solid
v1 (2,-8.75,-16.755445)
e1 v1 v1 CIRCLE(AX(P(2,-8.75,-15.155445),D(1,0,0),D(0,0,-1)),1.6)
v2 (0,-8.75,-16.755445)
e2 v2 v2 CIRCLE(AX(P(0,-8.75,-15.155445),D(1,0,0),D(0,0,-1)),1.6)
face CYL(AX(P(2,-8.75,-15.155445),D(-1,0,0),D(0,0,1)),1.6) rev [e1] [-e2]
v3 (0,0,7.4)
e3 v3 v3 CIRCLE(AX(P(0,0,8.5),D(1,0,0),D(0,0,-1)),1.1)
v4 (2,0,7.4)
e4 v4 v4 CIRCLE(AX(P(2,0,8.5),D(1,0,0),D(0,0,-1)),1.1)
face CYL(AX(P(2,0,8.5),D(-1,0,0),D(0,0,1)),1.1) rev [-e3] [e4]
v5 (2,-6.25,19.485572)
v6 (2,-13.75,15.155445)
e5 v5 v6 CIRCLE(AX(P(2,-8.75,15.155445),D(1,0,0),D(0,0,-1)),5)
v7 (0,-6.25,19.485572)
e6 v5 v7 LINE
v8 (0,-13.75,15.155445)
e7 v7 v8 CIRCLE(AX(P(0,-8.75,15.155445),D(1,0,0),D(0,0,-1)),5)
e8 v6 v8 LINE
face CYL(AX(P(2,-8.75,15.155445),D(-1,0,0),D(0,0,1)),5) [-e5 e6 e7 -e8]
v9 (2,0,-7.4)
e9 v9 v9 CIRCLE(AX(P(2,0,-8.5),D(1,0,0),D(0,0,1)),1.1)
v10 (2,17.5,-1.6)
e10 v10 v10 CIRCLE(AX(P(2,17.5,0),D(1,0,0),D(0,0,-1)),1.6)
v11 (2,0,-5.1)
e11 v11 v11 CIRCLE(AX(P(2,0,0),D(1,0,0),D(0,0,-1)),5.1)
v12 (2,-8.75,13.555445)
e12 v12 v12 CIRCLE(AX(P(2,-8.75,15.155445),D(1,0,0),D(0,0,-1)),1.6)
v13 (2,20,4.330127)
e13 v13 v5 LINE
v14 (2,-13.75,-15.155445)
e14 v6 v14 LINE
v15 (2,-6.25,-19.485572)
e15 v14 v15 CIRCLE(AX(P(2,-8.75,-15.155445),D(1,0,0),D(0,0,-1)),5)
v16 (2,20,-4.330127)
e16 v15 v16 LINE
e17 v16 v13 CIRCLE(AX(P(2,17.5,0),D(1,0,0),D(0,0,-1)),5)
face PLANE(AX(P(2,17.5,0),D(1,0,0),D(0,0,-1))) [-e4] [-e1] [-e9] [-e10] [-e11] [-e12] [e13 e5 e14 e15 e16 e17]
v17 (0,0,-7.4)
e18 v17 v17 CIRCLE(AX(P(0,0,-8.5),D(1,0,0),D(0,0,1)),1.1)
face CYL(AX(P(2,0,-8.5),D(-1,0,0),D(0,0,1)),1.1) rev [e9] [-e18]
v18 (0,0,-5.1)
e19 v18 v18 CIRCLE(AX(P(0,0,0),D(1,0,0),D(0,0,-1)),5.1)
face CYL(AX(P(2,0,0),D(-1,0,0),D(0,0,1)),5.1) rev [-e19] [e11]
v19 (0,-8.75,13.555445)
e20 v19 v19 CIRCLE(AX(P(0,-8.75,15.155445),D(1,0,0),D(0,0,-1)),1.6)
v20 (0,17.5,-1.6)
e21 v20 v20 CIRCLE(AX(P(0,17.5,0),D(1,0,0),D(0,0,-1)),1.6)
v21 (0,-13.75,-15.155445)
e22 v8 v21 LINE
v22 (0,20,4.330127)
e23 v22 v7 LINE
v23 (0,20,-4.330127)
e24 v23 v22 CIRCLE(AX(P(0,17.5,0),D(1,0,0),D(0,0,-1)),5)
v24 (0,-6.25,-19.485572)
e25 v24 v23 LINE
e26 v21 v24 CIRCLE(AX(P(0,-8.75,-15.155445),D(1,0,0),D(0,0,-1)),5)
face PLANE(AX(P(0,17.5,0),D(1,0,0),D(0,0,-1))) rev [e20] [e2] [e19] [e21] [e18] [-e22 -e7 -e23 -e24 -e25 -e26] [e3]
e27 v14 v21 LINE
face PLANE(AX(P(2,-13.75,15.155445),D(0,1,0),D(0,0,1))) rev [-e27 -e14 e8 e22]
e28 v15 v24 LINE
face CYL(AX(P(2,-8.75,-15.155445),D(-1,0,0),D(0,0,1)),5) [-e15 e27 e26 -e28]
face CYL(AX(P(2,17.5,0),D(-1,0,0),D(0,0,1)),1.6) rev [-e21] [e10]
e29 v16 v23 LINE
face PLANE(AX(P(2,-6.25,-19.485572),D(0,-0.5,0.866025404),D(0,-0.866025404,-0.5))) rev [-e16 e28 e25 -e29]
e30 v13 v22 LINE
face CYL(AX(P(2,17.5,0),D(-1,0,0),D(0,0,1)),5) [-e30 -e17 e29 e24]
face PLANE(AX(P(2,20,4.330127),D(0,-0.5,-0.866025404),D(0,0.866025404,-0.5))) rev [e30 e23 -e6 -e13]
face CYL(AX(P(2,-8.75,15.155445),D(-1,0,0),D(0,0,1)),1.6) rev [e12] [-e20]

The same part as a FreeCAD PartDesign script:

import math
import FreeCAD as App
import Part
import Sketcher
Q = App.Units.Quantity

doc = App.newDocument("Part")
body = doc.addObject("PartDesign::Body", "Body")

sketch1 = body.newObject("Sketcher::SketchObject", "Sketch")
sketch1.AttachmentSupport = (doc.getObject("YZ_Plane"), [""])
sketch1.MapMode = "FlatFace"
sketch1.addGeometry(Part.LineSegment(App.Vector(20, 4.3, 0), App.Vector(-6.2, 19.5, 0)), False)
sketch1.addGeometry(Part.ArcOfCircle(Part.Circle(App.Vector(-8.8, 15.2, 0), App.Vector(0, 0, 1), 5), math.radians(60), math.radians(180)), False)
sketch1.addGeometry(Part.LineSegment(App.Vector(-13.8, 15.2, 0), App.Vector(-13.8, -15.2, 0)), False)
sketch1.addGeometry(Part.ArcOfCircle(Part.Circle(App.Vector(-8.8, -15.2, 0), App.Vector(0, 0, 1), 5), math.radians(180), math.radians(300)), False)
sketch1.addGeometry(Part.LineSegment(App.Vector(-6.2, -19.5, 0), App.Vector(20, -4.3, 0)), False)
sketch1.addGeometry(Part.ArcOfCircle(Part.Circle(App.Vector(17.5, 0, 0), App.Vector(0, 0, 1), 5), math.radians(-60), math.radians(60)), False)
sketch1.addGeometry(Part.ArcOfCircle(Part.Circle(App.Vector(-8.8, 15.2, 0), App.Vector(0, 0, 1), 1.6), math.radians(27), math.radians(213)), False)
sketch1.addGeometry(Part.ArcOfCircle(Part.Circle(App.Vector(-8.8, 15.2, 0), App.Vector(0, 0, 1), 1.6), math.radians(-147), math.radians(27)), False)
sketch1.addGeometry(Part.Circle(App.Vector(0, 8.5, 0), App.Vector(0, 0, 1), 1.1), False)
sketch1.addGeometry(Part.Circle(App.Vector(0, 0, 0), App.Vector(0, 0, 1), 5.1), False)
sketch1.addGeometry(Part.Circle(App.Vector(-8.8, -15.2, 0), App.Vector(0, 0, 1), 1.6), False)
sketch1.addGeometry(Part.Circle(App.Vector(0, -8.5, 0), App.Vector(0, 0, 1), 1.1), False)
sketch1.addGeometry(Part.Circle(App.Vector(17.5, 0, 0), App.Vector(0, 0, 1), 1.6), False)
sketch1.addConstraint(Sketcher.Constraint("Tangent", 0, 2, 1, 1))
sketch1.addConstraint(Sketcher.Constraint("Tangent", 1, 2, 2, 1))
sketch1.addConstraint(Sketcher.Constraint("Tangent", 2, 2, 3, 1))
sketch1.addConstraint(Sketcher.Constraint("Tangent", 3, 2, 4, 1))
sketch1.addConstraint(Sketcher.Constraint("Tangent", 4, 2, 5, 1))
sketch1.addConstraint(Sketcher.Constraint("Tangent", 5, 2, 0, 1))
sketch1.addConstraint(Sketcher.Constraint("Tangent", 6, 1, 7, 2))
sketch1.addConstraint(Sketcher.Constraint("Coincident", 7, 1, 6, 2))
sketch1.addConstraint(Sketcher.Constraint("Vertical", 2))
sketch1.addConstraint(Sketcher.Constraint("Coincident", 9, 3, -1, 1))
sketch1.addConstraint(Sketcher.Constraint("Coincident", 6, 3, 1, 3))
sketch1.addConstraint(Sketcher.Constraint("Coincident", 10, 3, 3, 3))
sketch1.addConstraint(Sketcher.Constraint("Coincident", 12, 3, 5, 3))
sketch1.addConstraint(Sketcher.Constraint("Equal", 1, 3))
sketch1.addConstraint(Sketcher.Constraint("Equal", 3, 5))
sketch1.addConstraint(Sketcher.Constraint("Equal", 7, 10))
sketch1.addConstraint(Sketcher.Constraint("Equal", 8, 11))
sketch1.addConstraint(Sketcher.Constraint("Equal", 10, 12))
sketch1.addConstraint(Sketcher.Constraint("Symmetric", 8, 3, 11, 3, -1, 1))
sketch1.addConstraint(Sketcher.Constraint("Symmetric", 0, 2, 3, 2, -1))
sketch1.addConstraint(Sketcher.Constraint("PointOnObject", 8, 3, -2))
sketch1.addConstraint(Sketcher.Constraint("Radius", 1, 5.0))
sketch1.addConstraint(Sketcher.Constraint("Diameter", 8, 2.2))
sketch1.addConstraint(Sketcher.Constraint("Diameter", 9, 10.2))
sketch1.addConstraint(Sketcher.Constraint("Diameter", 10, 3.2))
sketch1.addConstraint(Sketcher.Constraint("Angle", 0, Q("150 deg")))
sketch1.addConstraint(Sketcher.Constraint("DistanceX", -1, 1, 4, 2, 20.0))
sketch1.addConstraint(Sketcher.Constraint("DistanceY", 11, 3, 8, 3, 17.0))
sketch1.addConstraint(Sketcher.Constraint("DistanceX", 1, 3, -1, 1, 8.75))
sketch1.addConstraint(Sketcher.Constraint("DistanceX", 7, 1, -1, 1, 10.097621))
sketch1.addConstraint(Sketcher.Constraint("DistanceY", 1, 3, 6, 1, 0.73582))
pad1 = body.newObject("PartDesign::Pad", "Pad")
pad1.Profile = sketch1
pad1.Length = 2

doc.recompute()
